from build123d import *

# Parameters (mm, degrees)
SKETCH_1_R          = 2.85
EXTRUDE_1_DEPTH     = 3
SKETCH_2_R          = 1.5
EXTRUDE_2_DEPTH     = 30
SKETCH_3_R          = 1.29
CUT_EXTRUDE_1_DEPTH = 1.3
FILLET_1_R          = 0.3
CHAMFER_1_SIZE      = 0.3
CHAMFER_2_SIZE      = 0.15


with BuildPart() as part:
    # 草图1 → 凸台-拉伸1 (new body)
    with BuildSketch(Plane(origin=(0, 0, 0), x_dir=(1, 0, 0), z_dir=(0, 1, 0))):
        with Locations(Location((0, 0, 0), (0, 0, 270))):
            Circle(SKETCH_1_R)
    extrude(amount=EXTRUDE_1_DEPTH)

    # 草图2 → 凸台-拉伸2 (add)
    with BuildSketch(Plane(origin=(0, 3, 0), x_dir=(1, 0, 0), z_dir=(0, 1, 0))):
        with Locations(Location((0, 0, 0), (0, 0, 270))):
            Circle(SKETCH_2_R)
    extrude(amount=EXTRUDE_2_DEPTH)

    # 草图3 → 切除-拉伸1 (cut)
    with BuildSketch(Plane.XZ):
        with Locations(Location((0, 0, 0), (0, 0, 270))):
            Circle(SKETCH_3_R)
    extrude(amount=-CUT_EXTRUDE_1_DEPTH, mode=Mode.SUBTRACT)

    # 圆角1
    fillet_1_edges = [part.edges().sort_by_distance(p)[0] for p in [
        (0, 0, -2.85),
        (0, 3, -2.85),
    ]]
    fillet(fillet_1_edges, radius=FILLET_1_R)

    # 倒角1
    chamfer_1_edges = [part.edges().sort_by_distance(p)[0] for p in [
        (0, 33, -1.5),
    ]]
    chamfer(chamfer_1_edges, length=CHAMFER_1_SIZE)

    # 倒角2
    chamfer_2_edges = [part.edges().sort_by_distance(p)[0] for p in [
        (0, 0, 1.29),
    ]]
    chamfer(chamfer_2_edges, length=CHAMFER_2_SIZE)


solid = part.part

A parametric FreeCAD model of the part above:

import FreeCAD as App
import Part
import Sketcher

V = App.Vector
Q = App.Units.Quantity


def edges_at(feature, points):
    """Names of the edges that pass closest to the given points."""
    edges = feature.Shape.Edges
    near = lambda p: min(range(len(edges)), key=lambda i: edges[i].distToShape(Part.Vertex(*p))[0])
    return sorted({f"Edge{near(p) + 1}" for p in points})

doc = App.newDocument("Part")
body = doc.addObject("PartDesign::Body", "Body")

# Sketch on XZ plane
sketch1 = body.newObject("Sketcher::SketchObject", "Sketch")
sketch1.AttachmentSupport = (doc.getObject("XZ_Plane"), [""])
sketch1.MapMode = "FlatFace"
sketch1.addGeometry(Part.Circle(V(0, 0, 0), V(0, 0, 1), 2.85), False)
sketch1.addConstraint([
    Sketcher.Constraint("Coincident", 0, 3, -1, 1),
    Sketcher.Constraint("Diameter", 0, Q("5.7 mm")),
])
pad1 = body.newObject("PartDesign::Pad", "Pad")
pad1.Profile = sketch1
pad1.Length = 3
pad1.Reversed = True

# Sketch on XZ plane
sketch2 = body.newObject("Sketcher::SketchObject", "Sketch001")
sketch2.AttachmentSupport = (doc.getObject("XZ_Plane"), [""])
sketch2.MapMode = "FlatFace"
sketch2.AttachmentOffset = App.Placement(V(0, 0, -3), App.Rotation())
sketch2.addGeometry(Part.Circle(V(0, 0, 0), V(0, 0, 1), 1.5), False)
sketch2.addConstraint([
    Sketcher.Constraint("Coincident", 0, 3, -1, 1),
    Sketcher.Constraint("Diameter", 0, Q("3 mm")),
])
pad2 = body.newObject("PartDesign::Pad", "Pad001")
pad2.Profile = sketch2
pad2.Length = 30
pad2.Reversed = True

# Sketch on XZ plane
sketch3 = body.newObject("Sketcher::SketchObject", "Sketch002")
sketch3.AttachmentSupport = (doc.getObject("XZ_Plane"), [""])
sketch3.MapMode = "FlatFace"
sketch3.addGeometry(Part.Circle(V(0, 0, 0), V(0, 0, 1), 1.29), False)
sketch3.addConstraint([
    Sketcher.Constraint("Coincident", 0, 3, -1, 1),
    Sketcher.Constraint("Diameter", 0, Q("2.58 mm")),
])
pocket1 = body.newObject("PartDesign::Pocket", "Pocket")
pocket1.Profile = sketch3
pocket1.Length = 1.3
doc.recompute()

fillet = body.newObject("PartDesign::Fillet", "Fillet")
fillet.Base = (pocket1, edges_at(pocket1, [(0, 0, -2.85), (0, 3, -2.85)]))
fillet.Radius = 0.3
doc.recompute()

chamfer = body.newObject("PartDesign::Chamfer", "Chamfer")
chamfer.Base = (fillet, edges_at(fillet, [(0, 33, -1.5)]))
chamfer.Size = 0.3
doc.recompute()

chamfer2 = body.newObject("PartDesign::Chamfer", "Chamfer001")
chamfer2.Base = (chamfer, edges_at(chamfer, [(0, 0, 1.29)]))
chamfer2.Size = 0.15

doc.recompute()
